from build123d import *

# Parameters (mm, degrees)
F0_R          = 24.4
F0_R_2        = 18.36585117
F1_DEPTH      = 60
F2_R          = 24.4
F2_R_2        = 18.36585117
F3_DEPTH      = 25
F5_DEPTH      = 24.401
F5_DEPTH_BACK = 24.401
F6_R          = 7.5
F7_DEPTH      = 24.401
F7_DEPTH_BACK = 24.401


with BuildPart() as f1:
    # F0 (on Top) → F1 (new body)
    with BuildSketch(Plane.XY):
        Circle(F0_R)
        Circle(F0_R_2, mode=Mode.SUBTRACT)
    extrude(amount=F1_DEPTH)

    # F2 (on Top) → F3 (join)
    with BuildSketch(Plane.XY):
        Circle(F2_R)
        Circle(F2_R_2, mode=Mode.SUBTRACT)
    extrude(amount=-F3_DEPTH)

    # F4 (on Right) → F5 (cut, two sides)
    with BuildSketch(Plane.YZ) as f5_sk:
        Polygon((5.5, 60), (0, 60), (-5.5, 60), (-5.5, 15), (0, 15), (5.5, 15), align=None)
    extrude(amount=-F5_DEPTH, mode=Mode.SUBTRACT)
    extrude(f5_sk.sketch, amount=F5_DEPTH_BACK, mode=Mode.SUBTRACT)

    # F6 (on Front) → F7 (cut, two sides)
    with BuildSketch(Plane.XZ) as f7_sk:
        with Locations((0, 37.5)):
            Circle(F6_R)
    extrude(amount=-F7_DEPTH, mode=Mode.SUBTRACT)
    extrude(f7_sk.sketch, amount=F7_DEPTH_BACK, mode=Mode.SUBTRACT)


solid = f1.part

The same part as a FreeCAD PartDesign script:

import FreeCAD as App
import Part
import Sketcher
Q = App.Units.Quantity


def add_polygon(sketch, points):
    """Adds a closed chain of lines whose ends are joined by coincident constraints."""
    first, n = sketch.GeometryCount, len(points)
    for a, b in zip(points, points[1:] + points[:1]):
        sketch.addGeometry(Part.LineSegment(App.Vector(*a, 0), App.Vector(*b, 0)), False)
    for i in range(n):
        sketch.addConstraint(Sketcher.Constraint("Coincident", first + i, 2, first + (i + 1) % n, 1))

doc = App.newDocument("Part")
params = doc.addObject("Spreadsheet::Sheet", "Params")
for row, (alias, value) in enumerate([
    ("sketch1_diameter", "48.8 mm"),
    ("pad1_length", "60 mm"),
    ("sketch2_diameter", "48.8 mm"),
    ("pad2_length", "25 mm"),
    ("sketch3_width", "11 mm"),
    ("sketch3_height", "45 mm"),
    ("sketch4_diameter", "15 mm"),
], start=1):
    params.set(f"A{row}", alias)
    params.set(f"B{row}", "=" + value)
    params.setAlias(f"B{row}", alias)

body = doc.addObject("PartDesign::Body", "Body")

# Sketch on XY plane
sketch1 = doc.addObject("Sketcher::SketchObject", "Sketch")
body.addObject(sketch1)
sketch1.AttachmentSupport = (doc.XY_Plane, [""])
sketch1.MapMode = "FlatFace"
sketch1.addGeometry([
    Part.Circle(App.Vector(0, 0, 0), App.Vector(0, 0, 1), 24.4),
    Part.Circle(App.Vector(0, 0, 0), App.Vector(0, 0, 1), 18.365851),
], False)
sketch1.addConstraint([
    Sketcher.Constraint("Coincident", 0, 3, -1, 1),
    Sketcher.Constraint("Coincident", 1, 3, -1, 1),
    Sketcher.Constraint("Diameter", 0, Q("48.8 mm")),
    Sketcher.Constraint("Diameter", 1, Q("36.731702 mm")),
])
sketch1.setExpression("Constraints[2]", "Params.sketch1_diameter")
pad1 = doc.addObject("PartDesign::Pad", "Pad")
body.addObject(pad1)
pad1.Profile = sketch1
pad1.setExpression("Length", "Params.pad1_length")

# Sketch on XY plane
sketch2 = doc.addObject("Sketcher::SketchObject", "Sketch001")
body.addObject(sketch2)
sketch2.AttachmentSupport = (doc.XY_Plane, [""])
sketch2.MapMode = "FlatFace"
sketch2.addGeometry([
    Part.Circle(App.Vector(0, 0, 0), App.Vector(0, 0, 1), 24.4),
    Part.Circle(App.Vector(0, 0, 0), App.Vector(0, 0, 1), 18.365851),
], False)
sketch2.addConstraint([
    Sketcher.Constraint("Coincident", 0, 3, -1, 1),
    Sketcher.Constraint("Coincident", 1, 3, -1, 1),
    Sketcher.Constraint("Diameter", 0, Q("48.8 mm")),
    Sketcher.Constraint("Diameter", 1, Q("36.731702 mm")),
])
sketch2.setExpression("Constraints[2]", "Params.sketch2_diameter")
pad2 = doc.addObject("PartDesign::Pad", "Pad001")
body.addObject(pad2)
pad2.Profile = sketch2
pad2.setExpression("Length", "Params.pad2_length")
pad2.Reversed = True

# Sketch on YZ plane
sketch3 = doc.addObject("Sketcher::SketchObject", "Sketch002")
body.addObject(sketch3)
sketch3.AttachmentSupport = (doc.YZ_Plane, [""])
sketch3.MapMode = "FlatFace"
add_polygon(sketch3, [(5.5, 60), (-5.5, 60), (-5.5, 15), (5.5, 15)])  # lines 0-3
sketch3.addConstraint([
    Sketcher.Constraint("Horizontal", 0),
    Sketcher.Constraint("Vertical", 1),
    Sketcher.Constraint("Horizontal", 2),
    Sketcher.Constraint("Vertical", 3),
    Sketcher.Constraint("DistanceX", 0, 2, 0, 1, Q("11 mm")),
    Sketcher.Constraint("DistanceY", 1, 2, 1, 1, Q("45 mm")),
    Sketcher.Constraint("DistanceY", -1, 1, 0, 2, Q("60 mm")),
    Sketcher.Constraint("DistanceX", 0, 2, -1, 1, Q("5.5 mm")),
])
sketch3.setExpression("Constraints[8]", "Params.sketch3_width")
sketch3.setExpression("Constraints[9]", "Params.sketch3_height")
pocket1 = doc.addObject("PartDesign::Pocket", "Pocket")
body.addObject(pocket1)
pocket1.Profile = sketch3
pocket1.Type = "ThroughAll"
pocket1.Midplane = True

# Sketch on XZ plane
sketch4 = doc.addObject("Sketcher::SketchObject", "Sketch003")
body.addObject(sketch4)
sketch4.AttachmentSupport = (doc.XZ_Plane, [""])
sketch4.MapMode = "FlatFace"
sketch4.addGeometry(Part.Circle(App.Vector(0, 37.5, 0), App.Vector(0, 0, 1), 7.5), False)
sketch4.addConstraint([
    Sketcher.Constraint("PointOnObject", 0, 3, -2),
    Sketcher.Constraint("Diameter", 0, Q("15 mm")),
    Sketcher.Constraint("DistanceY", -1, 1, 0, 3, Q("37.5 mm")),
])
sketch4.setExpression("Constraints[1]", "Params.sketch4_diameter")
pocket2 = doc.addObject("PartDesign::Pocket", "Pocket001")
body.addObject(pocket2)
pocket2.Profile = sketch4
pocket2.Type = "ThroughAll"
pocket2.Midplane = True

doc.recompute()
